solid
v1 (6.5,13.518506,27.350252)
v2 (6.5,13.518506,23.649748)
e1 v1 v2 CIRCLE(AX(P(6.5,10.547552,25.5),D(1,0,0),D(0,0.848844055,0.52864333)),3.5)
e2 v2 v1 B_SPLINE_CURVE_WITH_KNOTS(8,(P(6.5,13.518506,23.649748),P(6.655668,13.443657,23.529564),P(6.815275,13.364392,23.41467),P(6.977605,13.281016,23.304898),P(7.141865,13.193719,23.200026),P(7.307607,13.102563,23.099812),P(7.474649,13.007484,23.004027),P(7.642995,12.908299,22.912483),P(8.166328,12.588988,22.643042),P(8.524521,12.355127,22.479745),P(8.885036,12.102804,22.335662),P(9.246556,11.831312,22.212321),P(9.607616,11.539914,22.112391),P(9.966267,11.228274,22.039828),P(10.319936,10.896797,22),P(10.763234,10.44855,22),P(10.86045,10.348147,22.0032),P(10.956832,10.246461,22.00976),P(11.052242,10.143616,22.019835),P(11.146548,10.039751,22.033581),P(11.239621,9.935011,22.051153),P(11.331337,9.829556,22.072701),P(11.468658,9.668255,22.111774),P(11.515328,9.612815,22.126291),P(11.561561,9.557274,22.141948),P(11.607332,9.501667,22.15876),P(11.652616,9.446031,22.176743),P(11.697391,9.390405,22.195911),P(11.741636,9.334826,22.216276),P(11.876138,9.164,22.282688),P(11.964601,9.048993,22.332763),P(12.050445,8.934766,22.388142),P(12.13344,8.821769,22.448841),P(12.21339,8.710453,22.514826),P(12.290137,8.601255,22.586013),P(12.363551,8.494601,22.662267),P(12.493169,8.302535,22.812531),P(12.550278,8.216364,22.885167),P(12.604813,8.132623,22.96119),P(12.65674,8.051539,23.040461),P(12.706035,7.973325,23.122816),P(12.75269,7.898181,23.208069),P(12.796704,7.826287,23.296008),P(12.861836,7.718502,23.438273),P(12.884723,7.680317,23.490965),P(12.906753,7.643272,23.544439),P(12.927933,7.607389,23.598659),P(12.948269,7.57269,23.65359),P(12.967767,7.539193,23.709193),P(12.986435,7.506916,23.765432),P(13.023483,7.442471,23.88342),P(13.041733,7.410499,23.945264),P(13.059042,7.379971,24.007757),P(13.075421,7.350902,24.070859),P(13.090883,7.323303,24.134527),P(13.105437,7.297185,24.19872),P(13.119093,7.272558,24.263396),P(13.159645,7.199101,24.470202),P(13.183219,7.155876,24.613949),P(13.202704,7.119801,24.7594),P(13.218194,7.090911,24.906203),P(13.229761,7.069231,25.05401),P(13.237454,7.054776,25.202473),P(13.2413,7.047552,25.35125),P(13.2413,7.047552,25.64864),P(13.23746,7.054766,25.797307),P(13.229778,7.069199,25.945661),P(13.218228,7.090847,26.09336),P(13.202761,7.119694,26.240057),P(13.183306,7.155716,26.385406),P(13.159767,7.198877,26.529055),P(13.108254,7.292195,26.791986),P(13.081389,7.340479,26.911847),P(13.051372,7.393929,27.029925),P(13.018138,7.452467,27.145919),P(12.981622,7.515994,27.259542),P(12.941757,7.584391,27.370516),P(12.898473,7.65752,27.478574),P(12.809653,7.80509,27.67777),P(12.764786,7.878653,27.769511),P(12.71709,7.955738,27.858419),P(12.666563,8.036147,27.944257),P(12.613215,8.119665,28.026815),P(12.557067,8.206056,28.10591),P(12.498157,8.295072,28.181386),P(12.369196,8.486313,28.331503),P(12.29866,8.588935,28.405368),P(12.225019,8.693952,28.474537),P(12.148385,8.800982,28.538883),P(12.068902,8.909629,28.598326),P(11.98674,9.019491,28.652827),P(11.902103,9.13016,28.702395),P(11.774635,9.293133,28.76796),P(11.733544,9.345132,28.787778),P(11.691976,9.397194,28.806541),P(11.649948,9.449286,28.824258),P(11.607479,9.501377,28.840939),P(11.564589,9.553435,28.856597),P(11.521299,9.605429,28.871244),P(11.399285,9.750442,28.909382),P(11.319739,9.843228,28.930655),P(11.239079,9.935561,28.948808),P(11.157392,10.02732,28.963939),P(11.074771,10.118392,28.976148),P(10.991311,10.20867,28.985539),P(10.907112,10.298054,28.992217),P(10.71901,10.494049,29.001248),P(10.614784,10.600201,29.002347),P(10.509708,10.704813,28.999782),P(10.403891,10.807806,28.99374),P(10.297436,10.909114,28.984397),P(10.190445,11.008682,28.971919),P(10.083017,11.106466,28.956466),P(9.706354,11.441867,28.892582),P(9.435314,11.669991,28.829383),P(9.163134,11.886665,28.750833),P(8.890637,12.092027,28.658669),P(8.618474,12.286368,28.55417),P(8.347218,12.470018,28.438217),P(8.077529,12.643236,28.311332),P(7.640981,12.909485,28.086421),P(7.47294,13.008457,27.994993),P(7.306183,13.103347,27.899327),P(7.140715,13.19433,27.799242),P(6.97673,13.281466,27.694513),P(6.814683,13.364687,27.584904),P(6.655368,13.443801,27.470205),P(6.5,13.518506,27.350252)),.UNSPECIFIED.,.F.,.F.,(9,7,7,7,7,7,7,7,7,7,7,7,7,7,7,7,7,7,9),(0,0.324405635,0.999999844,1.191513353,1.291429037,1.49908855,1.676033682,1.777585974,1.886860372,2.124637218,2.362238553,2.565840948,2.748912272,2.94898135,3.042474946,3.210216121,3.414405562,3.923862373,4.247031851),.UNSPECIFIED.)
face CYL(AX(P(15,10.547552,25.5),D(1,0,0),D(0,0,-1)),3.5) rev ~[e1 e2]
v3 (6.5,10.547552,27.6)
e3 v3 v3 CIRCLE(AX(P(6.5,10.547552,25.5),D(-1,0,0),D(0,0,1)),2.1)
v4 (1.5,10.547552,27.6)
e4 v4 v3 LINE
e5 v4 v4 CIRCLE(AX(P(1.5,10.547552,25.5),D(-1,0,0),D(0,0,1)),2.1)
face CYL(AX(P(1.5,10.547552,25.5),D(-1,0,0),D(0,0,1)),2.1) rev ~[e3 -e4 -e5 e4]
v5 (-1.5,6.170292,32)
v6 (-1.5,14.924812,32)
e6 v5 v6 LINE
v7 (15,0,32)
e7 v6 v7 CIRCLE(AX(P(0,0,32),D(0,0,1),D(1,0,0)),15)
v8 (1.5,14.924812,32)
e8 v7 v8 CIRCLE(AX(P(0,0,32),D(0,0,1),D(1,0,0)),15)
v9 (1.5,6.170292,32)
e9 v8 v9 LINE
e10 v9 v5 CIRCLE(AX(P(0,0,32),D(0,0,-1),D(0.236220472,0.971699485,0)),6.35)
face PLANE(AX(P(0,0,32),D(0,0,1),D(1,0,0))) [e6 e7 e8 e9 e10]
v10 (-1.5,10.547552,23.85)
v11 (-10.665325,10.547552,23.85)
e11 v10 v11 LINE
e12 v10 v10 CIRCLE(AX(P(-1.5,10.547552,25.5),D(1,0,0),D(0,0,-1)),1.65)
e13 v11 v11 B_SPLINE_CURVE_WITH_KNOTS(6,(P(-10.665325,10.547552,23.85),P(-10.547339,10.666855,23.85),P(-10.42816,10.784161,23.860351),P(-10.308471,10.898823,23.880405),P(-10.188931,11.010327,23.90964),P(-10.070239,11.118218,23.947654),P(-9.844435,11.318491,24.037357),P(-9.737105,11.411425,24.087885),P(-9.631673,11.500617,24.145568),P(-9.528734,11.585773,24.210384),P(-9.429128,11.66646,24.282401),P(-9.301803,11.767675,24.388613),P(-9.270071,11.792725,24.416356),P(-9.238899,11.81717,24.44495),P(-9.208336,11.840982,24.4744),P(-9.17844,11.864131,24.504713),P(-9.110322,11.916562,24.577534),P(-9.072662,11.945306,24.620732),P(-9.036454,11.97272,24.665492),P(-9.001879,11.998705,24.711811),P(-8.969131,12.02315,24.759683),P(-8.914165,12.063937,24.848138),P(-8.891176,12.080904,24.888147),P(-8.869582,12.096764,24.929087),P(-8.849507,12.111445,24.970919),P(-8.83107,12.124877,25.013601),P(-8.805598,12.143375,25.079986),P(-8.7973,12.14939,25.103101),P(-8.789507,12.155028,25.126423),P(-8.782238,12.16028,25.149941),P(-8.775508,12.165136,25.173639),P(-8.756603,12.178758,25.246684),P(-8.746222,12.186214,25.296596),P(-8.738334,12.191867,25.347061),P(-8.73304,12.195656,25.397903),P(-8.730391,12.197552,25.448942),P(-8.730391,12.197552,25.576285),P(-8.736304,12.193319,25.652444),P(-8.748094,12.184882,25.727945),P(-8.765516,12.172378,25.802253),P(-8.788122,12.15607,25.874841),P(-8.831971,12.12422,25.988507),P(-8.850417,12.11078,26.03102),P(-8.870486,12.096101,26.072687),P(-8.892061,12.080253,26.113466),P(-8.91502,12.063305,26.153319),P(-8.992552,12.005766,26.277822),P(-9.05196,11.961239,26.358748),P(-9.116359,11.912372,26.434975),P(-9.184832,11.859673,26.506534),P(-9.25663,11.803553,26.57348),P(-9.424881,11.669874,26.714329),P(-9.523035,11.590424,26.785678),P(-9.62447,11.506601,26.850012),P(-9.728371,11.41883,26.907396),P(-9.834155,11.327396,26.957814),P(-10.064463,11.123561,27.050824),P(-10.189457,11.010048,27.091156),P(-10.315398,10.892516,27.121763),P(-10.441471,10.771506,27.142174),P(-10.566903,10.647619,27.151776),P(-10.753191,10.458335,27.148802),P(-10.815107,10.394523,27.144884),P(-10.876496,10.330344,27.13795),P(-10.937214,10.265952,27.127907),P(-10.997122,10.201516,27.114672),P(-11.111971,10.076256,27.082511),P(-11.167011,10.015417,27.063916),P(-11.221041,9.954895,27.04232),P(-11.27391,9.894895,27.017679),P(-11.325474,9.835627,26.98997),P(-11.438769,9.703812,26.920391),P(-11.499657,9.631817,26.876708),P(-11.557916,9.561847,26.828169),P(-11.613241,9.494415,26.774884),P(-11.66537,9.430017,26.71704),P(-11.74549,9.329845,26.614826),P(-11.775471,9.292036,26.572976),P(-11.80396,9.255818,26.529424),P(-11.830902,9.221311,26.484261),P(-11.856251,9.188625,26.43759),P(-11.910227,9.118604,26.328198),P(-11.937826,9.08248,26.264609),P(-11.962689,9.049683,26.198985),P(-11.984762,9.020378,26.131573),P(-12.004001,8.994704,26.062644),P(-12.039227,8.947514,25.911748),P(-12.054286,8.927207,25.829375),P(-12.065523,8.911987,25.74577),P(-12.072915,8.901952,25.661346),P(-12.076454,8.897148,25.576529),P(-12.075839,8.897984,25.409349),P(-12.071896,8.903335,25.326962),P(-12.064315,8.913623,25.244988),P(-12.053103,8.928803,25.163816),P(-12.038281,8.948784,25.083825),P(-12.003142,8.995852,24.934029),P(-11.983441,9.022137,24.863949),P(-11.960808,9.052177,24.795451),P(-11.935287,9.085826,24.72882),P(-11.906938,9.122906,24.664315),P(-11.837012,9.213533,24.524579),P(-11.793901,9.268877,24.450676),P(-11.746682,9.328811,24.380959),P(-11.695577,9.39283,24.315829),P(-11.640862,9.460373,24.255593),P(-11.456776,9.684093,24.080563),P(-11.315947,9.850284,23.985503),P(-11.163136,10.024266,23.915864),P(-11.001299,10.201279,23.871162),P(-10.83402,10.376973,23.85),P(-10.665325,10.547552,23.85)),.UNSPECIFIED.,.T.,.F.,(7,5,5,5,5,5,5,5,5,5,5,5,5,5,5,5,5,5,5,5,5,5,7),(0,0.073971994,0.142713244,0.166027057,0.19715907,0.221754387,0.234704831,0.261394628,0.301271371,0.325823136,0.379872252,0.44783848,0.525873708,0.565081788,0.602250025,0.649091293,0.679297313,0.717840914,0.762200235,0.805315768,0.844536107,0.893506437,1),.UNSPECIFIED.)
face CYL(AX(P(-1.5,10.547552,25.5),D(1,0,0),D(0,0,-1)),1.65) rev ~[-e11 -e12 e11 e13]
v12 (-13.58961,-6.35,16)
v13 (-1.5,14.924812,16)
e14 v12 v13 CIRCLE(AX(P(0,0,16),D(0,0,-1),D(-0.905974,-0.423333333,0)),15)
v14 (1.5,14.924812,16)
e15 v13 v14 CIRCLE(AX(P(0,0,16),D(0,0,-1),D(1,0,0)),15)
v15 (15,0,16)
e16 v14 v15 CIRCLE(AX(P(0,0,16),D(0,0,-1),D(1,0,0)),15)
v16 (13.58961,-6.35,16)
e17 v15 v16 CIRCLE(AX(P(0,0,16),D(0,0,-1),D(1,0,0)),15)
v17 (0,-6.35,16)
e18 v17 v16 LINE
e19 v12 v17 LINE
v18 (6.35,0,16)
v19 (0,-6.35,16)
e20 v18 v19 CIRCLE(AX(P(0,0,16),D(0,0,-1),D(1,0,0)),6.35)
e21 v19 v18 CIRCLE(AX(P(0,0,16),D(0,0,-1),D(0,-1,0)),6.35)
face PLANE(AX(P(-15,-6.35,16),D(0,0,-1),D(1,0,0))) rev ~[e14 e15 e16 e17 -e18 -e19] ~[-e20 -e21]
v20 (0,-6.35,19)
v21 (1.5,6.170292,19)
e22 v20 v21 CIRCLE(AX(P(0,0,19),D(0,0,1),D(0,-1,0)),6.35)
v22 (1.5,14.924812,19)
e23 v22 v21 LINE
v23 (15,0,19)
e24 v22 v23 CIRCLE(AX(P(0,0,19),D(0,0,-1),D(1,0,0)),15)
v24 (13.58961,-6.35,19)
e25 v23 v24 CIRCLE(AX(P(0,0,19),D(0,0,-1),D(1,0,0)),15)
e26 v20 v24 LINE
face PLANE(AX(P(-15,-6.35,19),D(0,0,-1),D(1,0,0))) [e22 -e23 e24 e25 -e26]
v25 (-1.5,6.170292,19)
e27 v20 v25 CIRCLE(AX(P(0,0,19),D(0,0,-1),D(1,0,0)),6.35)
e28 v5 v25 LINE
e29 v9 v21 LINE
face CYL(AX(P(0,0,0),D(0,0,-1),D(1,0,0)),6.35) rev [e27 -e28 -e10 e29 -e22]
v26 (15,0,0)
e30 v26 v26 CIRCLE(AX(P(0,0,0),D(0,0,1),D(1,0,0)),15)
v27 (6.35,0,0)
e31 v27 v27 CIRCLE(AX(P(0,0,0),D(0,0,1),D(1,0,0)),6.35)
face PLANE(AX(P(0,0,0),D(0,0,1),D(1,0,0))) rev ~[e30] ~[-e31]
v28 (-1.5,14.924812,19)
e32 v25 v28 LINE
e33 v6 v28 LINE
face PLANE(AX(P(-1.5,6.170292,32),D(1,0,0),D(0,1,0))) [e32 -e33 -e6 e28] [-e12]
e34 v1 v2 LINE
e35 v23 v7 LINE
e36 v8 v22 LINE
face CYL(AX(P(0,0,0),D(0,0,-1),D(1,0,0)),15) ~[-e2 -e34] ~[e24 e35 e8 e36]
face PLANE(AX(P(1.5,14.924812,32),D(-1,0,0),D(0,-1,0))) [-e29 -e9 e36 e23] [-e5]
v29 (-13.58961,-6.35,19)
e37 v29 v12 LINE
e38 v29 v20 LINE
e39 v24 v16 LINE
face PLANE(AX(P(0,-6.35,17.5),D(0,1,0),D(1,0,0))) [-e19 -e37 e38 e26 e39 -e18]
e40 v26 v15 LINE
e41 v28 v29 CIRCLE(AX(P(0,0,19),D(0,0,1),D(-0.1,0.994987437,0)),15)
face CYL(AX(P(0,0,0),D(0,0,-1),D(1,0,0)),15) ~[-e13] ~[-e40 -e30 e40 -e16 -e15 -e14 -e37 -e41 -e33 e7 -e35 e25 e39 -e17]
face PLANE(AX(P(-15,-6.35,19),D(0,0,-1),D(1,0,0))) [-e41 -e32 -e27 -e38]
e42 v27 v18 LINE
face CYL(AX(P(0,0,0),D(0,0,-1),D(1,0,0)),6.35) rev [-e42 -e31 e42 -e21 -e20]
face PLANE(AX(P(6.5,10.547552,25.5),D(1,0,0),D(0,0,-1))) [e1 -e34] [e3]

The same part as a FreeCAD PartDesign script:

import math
import FreeCAD as App
import Part
import Sketcher


def add_polygon(sketch, points):
    """Adds a closed chain of lines whose ends are joined by coincident constraints."""
    first, n = sketch.GeometryCount, len(points)
    for a, b in zip(points, points[1:] + points[:1]):
        sketch.addGeometry(Part.LineSegment(App.Vector(*a, 0), App.Vector(*b, 0)), False)
    for i in range(n):
        sketch.addConstraint(Sketcher.Constraint("Coincident", first + i, 2, first + (i + 1) % n, 1))

doc = App.newDocument("Part")
body = doc.addObject("PartDesign::Body", "Body")

sketch1 = doc.addObject("Sketcher::SketchObject", "Sketch")
body.addObject(sketch1)
sketch1.AttachmentSupport = (doc.XY_Plane, [""])
sketch1.MapMode = "FlatFace"
sketch1.addGeometry([
    Part.Circle(App.Vector(0, 0, 0), App.Vector(0, 0, 1), 15),
    Part.Circle(App.Vector(0, 0, 0), App.Vector(0, 0, 1), 6),
], False)
sketch1.addConstraint([
    Sketcher.Constraint("Coincident", 0, 3, -1, 1),
    Sketcher.Constraint("Coincident", 1, 3, -1, 1),
    Sketcher.Constraint("Diameter", 0, 30.0),
    Sketcher.Constraint("Diameter", 1, 12.7),
])
pad1 = doc.addObject("PartDesign::Pad", "Pad")
body.addObject(pad1)
pad1.Profile = sketch1
pad1.Length = 32

sketch2 = doc.addObject("Sketcher::SketchObject", "Sketch001")
body.addObject(sketch2)
sketch2.AttachmentSupport = (doc.XY_Plane, [""])
sketch2.MapMode = "FlatFace"
sketch2.AttachmentOffset = App.Placement(App.Vector(0, 0, 32), App.Rotation())
sketch2.addGeometry([
    Part.LineSegment(App.Vector(-1.5, 14.9, 0), App.Vector(-1.5, 6.2, 0)),
    Part.ArcOfCircle(Part.Circle(App.Vector(0, 6.2, 0), App.Vector(0, 0, 1), 1.5), math.radians(180), math.radians(360)),
    Part.LineSegment(App.Vector(1.5, 6.2, 0), App.Vector(1.5, 14.9, 0)),
    Part.ArcOfCircle(Part.Circle(App.Vector(0, 14.9, 0), App.Vector(0, 0, 1), 1.5), math.radians(0), math.radians(180)),
], False)
sketch2.addConstraint([
    Sketcher.Constraint("Tangent", 0, 2, 1, 1),
    Sketcher.Constraint("Tangent", 1, 2, 2, 1),
    Sketcher.Constraint("Tangent", 2, 2, 3, 1),
    Sketcher.Constraint("Tangent", 3, 2, 0, 1),
    Sketcher.Constraint("Vertical", 0),
    Sketcher.Constraint("Vertical", 2),
    Sketcher.Constraint("PointOnObject", 1, 3, -2),
    Sketcher.Constraint("Radius", 1, 1.5),
    Sketcher.Constraint("DistanceY", 0, 2, 0, 1, 8.75452),
    Sketcher.Constraint("DistanceY", -1, 1, 1, 3, 6.170292),
])
pocket1 = doc.addObject("PartDesign::Pocket", "Pocket")
body.addObject(pocket1)
pocket1.Profile = sketch2
pocket1.Length = 16

sketch3 = doc.addObject("Sketcher::SketchObject", "Sketch002")
body.addObject(sketch3)
sketch3.AttachmentSupport = (doc.XZ_Plane, [""])
sketch3.MapMode = "FlatFace"
sketch3.AttachmentOffset = App.Placement(App.Vector(0, 0, 6.35), App.Rotation())
add_polygon(sketch3, [(-15, 16), (-15, 19), (15, 19), (15, 16)])
sketch3.addConstraint([
    Sketcher.Constraint("Vertical", 0),
    Sketcher.Constraint("Horizontal", 1),
    Sketcher.Constraint("Vertical", 2),
    Sketcher.Constraint("Horizontal", 3),
    Sketcher.Constraint("DistanceX", 1, 1, 1, 2, 30.0),
    Sketcher.Constraint("DistanceY", 0, 1, 0, 2, 3.0),
    Sketcher.Constraint("DistanceX", 0, 2, -1, 1, 15.0),
    Sketcher.Constraint("DistanceY", -1, 1, 0, 2, 19.0),
])
pocket2 = doc.addObject("PartDesign::Pocket", "Pocket001")
body.addObject(pocket2)
pocket2.Profile = sketch3
pocket2.Length = 21.274812

sketch4 = doc.addObject("Sketcher::SketchObject", "Sketch003")
body.addObject(sketch4)
sketch4.AttachmentSupport = (doc.YZ_Plane, [""])
sketch4.MapMode = "FlatFace"
sketch4.AttachmentOffset = App.Placement(App.Vector(0, 0, -1.5), App.Rotation())
sketch4.addGeometry(Part.Circle(App.Vector(10.5, 25.5, 0), App.Vector(0, 0, 1), 1.6), False)
sketch4.addConstraint([
    Sketcher.Constraint("Diameter", 0, 3.3),
    Sketcher.Constraint("DistanceY", -1, 1, 0, 3, 25.5),
    Sketcher.Constraint("DistanceX", -1, 1, 0, 3, 10.547552),
])
pocket3 = doc.addObject("PartDesign::Pocket", "Pocket002")
body.addObject(pocket3)
pocket3.Profile = sketch4
pocket3.Type = "ThroughAll"
pocket3.Midplane = True

sketch5 = doc.addObject("Sketcher::SketchObject", "Sketch004")
body.addObject(sketch5)
sketch5.AttachmentSupport = (doc.YZ_Plane, [""])
sketch5.MapMode = "FlatFace"
sketch5.AttachmentOffset = App.Placement(App.Vector(0, 0, 1.5), App.Rotation())
sketch5.addGeometry(Part.Circle(App.Vector(10.5, 25.5, 0), App.Vector(0, 0, 1), 2.1), False)
sketch5.addConstraint([
    Sketcher.Constraint("Diameter", 0, 4.2),
    Sketcher.Constraint("DistanceY", -1, 1, 0, 3, 25.5),
    Sketcher.Constraint("DistanceX", -1, 1, 0, 3, 10.547552),
])
pocket4 = doc.addObject("PartDesign::Pocket", "Pocket003")
body.addObject(pocket4)
pocket4.Profile = sketch5
pocket4.Type = "ThroughAll"
pocket4.Reversed = True

sketch6 = doc.addObject("Sketcher::SketchObject", "Sketch005")
body.addObject(sketch6)
sketch6.AttachmentSupport = (doc.YZ_Plane, [""])
sketch6.MapMode = "FlatFace"
sketch6.AttachmentOffset = App.Placement(App.Vector(0, 0, 15), App.Rotation())
sketch6.addGeometry(Part.Circle(App.Vector(10.5, 25.5, 0), App.Vector(0, 0, 1), 3.5), False)
sketch6.addConstraint([
    Sketcher.Constraint("Diameter", 0, 7.0),
    Sketcher.Constraint("DistanceY", -1, 1, 0, 3, 25.5),
    Sketcher.Constraint("DistanceX", -1, 1, 0, 3, 10.547552),
])
pocket5 = doc.addObject("PartDesign::Pocket", "Pocket004")
body.addObject(pocket5)
pocket5.Profile = sketch6
pocket5.Length = 8.5

doc.recompute()
